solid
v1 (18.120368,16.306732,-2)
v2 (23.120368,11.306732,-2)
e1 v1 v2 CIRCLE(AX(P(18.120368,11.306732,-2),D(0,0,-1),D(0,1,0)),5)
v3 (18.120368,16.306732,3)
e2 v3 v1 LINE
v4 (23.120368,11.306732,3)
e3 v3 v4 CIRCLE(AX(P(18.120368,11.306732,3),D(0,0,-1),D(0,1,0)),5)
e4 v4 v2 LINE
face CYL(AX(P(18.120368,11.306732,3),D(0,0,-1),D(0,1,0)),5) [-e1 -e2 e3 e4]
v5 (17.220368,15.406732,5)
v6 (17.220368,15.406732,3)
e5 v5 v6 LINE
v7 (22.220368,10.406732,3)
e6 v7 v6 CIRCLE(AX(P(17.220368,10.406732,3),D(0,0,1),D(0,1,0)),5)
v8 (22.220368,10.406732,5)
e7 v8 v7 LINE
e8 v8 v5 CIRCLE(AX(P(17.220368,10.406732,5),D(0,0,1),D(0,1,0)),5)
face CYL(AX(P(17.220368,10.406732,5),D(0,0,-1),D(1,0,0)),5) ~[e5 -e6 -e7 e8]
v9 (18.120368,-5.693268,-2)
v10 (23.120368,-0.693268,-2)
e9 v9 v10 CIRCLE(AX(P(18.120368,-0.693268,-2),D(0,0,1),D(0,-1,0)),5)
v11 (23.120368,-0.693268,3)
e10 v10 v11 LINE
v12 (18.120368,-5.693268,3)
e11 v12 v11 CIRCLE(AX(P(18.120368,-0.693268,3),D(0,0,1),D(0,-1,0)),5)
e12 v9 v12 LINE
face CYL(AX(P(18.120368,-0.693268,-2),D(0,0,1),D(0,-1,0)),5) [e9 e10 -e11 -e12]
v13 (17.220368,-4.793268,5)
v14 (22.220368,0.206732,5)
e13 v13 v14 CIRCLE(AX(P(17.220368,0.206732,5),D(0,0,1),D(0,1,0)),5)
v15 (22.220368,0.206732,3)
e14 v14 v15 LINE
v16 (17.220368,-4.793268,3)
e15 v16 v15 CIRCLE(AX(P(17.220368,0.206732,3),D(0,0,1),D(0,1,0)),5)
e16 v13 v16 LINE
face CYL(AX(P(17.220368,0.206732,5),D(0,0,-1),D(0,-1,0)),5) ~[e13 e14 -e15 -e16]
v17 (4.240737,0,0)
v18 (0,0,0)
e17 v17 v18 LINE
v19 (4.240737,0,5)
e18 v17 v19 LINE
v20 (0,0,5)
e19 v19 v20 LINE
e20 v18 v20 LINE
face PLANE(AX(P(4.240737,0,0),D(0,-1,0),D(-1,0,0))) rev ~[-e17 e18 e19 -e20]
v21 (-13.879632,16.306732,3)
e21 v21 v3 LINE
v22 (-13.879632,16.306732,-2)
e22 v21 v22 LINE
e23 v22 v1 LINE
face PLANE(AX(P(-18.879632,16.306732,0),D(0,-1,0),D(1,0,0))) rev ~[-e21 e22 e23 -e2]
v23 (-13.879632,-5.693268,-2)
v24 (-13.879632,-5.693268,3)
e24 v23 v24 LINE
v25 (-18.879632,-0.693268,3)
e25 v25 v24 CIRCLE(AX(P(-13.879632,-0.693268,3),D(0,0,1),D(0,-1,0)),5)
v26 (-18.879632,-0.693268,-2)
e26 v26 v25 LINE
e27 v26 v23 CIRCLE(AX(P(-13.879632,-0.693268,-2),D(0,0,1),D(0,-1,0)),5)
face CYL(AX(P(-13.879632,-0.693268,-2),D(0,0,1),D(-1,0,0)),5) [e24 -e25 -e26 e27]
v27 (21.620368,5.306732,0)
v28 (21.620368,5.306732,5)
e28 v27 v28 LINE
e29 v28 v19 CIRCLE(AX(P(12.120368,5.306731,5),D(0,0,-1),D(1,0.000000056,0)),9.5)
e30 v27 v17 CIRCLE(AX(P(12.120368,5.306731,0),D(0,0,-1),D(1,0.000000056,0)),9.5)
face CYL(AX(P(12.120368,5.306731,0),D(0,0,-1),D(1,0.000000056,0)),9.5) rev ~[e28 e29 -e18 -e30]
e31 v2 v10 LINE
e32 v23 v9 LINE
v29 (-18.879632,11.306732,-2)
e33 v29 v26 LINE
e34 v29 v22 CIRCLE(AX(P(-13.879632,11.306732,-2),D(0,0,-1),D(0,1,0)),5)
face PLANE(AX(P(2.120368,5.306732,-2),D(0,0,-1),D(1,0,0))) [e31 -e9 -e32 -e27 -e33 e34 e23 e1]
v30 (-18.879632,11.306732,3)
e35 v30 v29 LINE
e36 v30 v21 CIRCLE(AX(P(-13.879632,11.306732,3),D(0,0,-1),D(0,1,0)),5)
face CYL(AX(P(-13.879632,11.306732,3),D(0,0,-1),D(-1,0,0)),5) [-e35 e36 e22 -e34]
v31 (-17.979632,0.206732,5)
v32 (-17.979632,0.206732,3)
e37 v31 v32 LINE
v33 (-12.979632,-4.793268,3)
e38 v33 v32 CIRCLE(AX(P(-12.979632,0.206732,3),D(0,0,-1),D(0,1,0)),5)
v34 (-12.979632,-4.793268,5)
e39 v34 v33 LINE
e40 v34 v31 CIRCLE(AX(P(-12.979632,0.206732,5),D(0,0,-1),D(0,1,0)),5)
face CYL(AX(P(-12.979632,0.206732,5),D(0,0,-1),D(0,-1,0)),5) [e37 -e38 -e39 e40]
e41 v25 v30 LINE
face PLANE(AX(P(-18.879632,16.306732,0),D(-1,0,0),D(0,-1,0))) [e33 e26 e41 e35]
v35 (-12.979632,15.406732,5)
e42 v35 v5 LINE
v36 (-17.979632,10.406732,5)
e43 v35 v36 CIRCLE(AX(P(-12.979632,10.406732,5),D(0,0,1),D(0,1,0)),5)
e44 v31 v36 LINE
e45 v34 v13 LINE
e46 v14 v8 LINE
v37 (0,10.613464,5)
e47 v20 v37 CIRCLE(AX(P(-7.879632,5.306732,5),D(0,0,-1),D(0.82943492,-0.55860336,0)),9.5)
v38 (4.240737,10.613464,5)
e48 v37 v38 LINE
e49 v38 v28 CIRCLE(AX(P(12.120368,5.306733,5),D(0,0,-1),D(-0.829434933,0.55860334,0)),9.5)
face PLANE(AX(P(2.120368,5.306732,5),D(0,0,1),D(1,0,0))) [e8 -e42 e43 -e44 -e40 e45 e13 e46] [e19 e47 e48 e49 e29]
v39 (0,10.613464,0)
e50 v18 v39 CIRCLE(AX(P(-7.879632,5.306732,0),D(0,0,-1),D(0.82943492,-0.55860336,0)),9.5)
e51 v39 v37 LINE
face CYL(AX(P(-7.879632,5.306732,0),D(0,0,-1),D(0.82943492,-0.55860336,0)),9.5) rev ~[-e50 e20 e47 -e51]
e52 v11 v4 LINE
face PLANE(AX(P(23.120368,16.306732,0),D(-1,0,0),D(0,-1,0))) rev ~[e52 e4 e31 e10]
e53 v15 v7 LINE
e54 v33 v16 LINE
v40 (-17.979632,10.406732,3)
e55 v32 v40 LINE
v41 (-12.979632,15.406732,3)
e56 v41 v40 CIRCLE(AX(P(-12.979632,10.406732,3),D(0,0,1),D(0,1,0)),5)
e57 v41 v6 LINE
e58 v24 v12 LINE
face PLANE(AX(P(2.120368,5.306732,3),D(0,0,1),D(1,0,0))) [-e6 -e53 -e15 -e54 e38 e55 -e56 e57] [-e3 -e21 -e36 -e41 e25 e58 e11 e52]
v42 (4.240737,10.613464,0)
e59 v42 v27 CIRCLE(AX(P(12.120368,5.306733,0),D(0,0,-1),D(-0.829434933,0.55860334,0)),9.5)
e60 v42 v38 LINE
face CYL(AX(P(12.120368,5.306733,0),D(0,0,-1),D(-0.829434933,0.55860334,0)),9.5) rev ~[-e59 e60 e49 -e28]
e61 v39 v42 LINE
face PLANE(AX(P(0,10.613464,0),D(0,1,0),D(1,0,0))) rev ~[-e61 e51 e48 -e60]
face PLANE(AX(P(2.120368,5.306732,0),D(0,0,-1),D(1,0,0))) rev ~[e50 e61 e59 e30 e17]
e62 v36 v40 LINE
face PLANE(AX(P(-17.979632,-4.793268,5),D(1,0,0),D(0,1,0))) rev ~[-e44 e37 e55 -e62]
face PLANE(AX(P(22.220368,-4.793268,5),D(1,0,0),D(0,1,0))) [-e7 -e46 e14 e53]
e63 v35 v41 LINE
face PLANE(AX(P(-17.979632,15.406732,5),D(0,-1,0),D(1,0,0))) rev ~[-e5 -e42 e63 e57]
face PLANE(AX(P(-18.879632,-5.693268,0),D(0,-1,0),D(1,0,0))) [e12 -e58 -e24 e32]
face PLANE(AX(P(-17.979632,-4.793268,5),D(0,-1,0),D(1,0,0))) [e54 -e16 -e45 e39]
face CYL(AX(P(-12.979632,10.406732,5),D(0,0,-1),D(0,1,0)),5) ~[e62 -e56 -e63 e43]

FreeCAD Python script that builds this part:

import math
import FreeCAD as App
import Part
import Sketcher
from FreeCAD import Vector


def edges_at(feature, points):
    """Names of the edges that pass closest to the given points."""
    edges = feature.Shape.Edges
    near = lambda p: min(range(len(edges)), key=lambda i: edges[i].distToShape(Part.Vertex(*p))[0])
    return sorted({f"Edge{near(p) + 1}" for p in points})


def add_polygon(sketch, points):
    """Adds a closed chain of lines whose ends are joined by coincident constraints."""
    first, n = sketch.GeometryCount, len(points)
    for a, b in zip(points, points[1:] + points[:1]):
        sketch.addGeometry(Part.LineSegment(App.Vector(*a, 0), App.Vector(*b, 0)), False)
    for i in range(n):
        sketch.addConstraint(Sketcher.Constraint("Coincident", first + i, 2, first + (i + 1) % n, 1))

doc = App.newDocument("Part")
body = doc.addObject("PartDesign::Body", "Body")

# Sketch on XY plane
sketch1 = body.newObject("Sketcher::SketchObject", "Sketch")
sketch1.AttachmentSupport = (doc.getObject("XY_Plane"), [""])
sketch1.MapMode = "FlatFace"
add_polygon(sketch1, [(-18.9, 16.3), (-18.9, -5.7), (23.1, -5.7), (23.1, 16.3)])  # lines 0-3
sketch1.addGeometry(Part.LineSegment(Vector(4.2, 0, 0), Vector(0, 0, 0)), False)  # 4
sketch1.addGeometry(Part.ArcOfCircle(Part.Circle(Vector(-7.9, 5.3, 0), Vector(0, 0, 1), 9.5), math.radians(34), math.radians(326)), False)  # 5
sketch1.addGeometry(Part.LineSegment(Vector(0, 10.6, 0), Vector(4.2, 10.6, 0)), False)  # 6
sketch1.addGeometry(Part.ArcOfCircle(Part.Circle(Vector(12.1, 5.3, 0), Vector(0, 0, 1), 9.5), math.radians(0), math.radians(146)), False)  # 7
sketch1.addGeometry(Part.ArcOfCircle(Part.Circle(Vector(12.1, 5.3, 0), Vector(0, 0, 1), 9.5), math.radians(-146), math.radians(0)), False)  # 8
sketch1.addConstraint([
    Sketcher.Constraint("Coincident", 4, 2, 5, 2),
    Sketcher.Constraint("Coincident", 5, 1, 6, 1),
    Sketcher.Constraint("Coincident", 6, 2, 7, 2),
    Sketcher.Constraint("Tangent", 7, 1, 8, 2),
    Sketcher.Constraint("Coincident", 8, 1, 4, 1),
    Sketcher.Constraint("Vertical", 0),
    Sketcher.Constraint("Horizontal", 1),
    Sketcher.Constraint("Vertical", 2),
    Sketcher.Constraint("Horizontal", 3),
    Sketcher.Constraint("Horizontal", 4),
    Sketcher.Constraint("Horizontal", 6),
    Sketcher.Constraint("Coincident", 4, 2, -1, 1),
    Sketcher.Constraint("Equal", 5, 7),
    Sketcher.Constraint("Equal", 7, 8),
    Sketcher.Constraint("PointOnObject", 5, 1, -2),
    Sketcher.Constraint("Horizontal", 5, 3, 7, 3),
    Sketcher.Constraint("Horizontal", 8, 3, 7, 1),
    Sketcher.Constraint("Radius", 5, 9.5),
    Sketcher.Constraint("DistanceX", 1, 1, 1, 2, 42.0),
    Sketcher.Constraint("DistanceY", 0, 2, 0, 1, 22.0),
    Sketcher.Constraint("DistanceX", 5, 3, 7, 3, 20.0),
    Sketcher.Constraint("DistanceX", 0, 2, 5, 3, 11.0),
    Sketcher.Constraint("DistanceY", 0, 2, 5, 3, 11.0),
    Sketcher.Constraint("DistanceX", 4, 2, 4, 1, 4.240737),
])
pad1 = body.newObject("PartDesign::Pad", "Pad")
pad1.Profile = sketch1
pad1.Length = 5

# Sketch on XY plane
sketch2 = body.newObject("Sketcher::SketchObject", "Sketch001")
sketch2.AttachmentSupport = (doc.getObject("XY_Plane"), [""])
sketch2.MapMode = "FlatFace"
add_polygon(sketch2, [(-19, -6), (-19, 16), (23, 16), (23, -6)])  # lines 0-3
sketch2.addConstraint([
    Sketcher.Constraint("Vertical", 0),
    Sketcher.Constraint("Horizontal", 1),
    Sketcher.Constraint("Vertical", 2),
    Sketcher.Constraint("Horizontal", 3),
    Sketcher.Constraint("DistanceX", 1, 1, 1, 2, 42.0),
    Sketcher.Constraint("DistanceY", 0, 1, 0, 2, 22.0),
    Sketcher.Constraint("DistanceY", -1, 1, 0, 2, 16.306732),
    Sketcher.Constraint("DistanceX", 0, 2, -1, 1, 18.879632),
])
pad2 = body.newObject("PartDesign::Pad", "Pad001")
pad2.Profile = sketch2
pad2.Length = 2
pad2.Reversed = True

# Sketch on XY plane
sketch3 = body.newObject("Sketcher::SketchObject", "Sketch002")
sketch3.AttachmentSupport = (doc.getObject("XY_Plane"), [""])
sketch3.MapMode = "FlatFace"
sketch3.AttachmentOffset = App.Placement(Vector(0, 0, 5), App.Rotation())
add_polygon(sketch3, [(-19, 16), (-19, -6), (23, -6), (23, 16)])  # lines 0-3
add_polygon(sketch3, [(22, -5), (-18, -5), (-18, 15), (22, 15)])  # lines 4-7
sketch3.addConstraint([
    Sketcher.Constraint("Vertical", 0),
    Sketcher.Constraint("Horizontal", 1),
    Sketcher.Constraint("Vertical", 2),
    Sketcher.Constraint("Horizontal", 3),
    Sketcher.Constraint("Horizontal", 4),
    Sketcher.Constraint("Vertical", 5),
    Sketcher.Constraint("Horizontal", 6),
    Sketcher.Constraint("Vertical", 7),
    Sketcher.Constraint("DistanceX", 1, 1, 1, 2, 42.0),
    Sketcher.Constraint("DistanceY", 0, 2, 0, 1, 22.0),
    Sketcher.Constraint("DistanceX", 4, 2, 4, 1, 40.2),
    Sketcher.Constraint("DistanceY", 5, 1, 5, 2, 20.2),
    Sketcher.Constraint("DistanceX", 0, 2, 4, 2, 0.9),
    Sketcher.Constraint("DistanceY", 0, 2, 4, 2, 0.9),
    Sketcher.Constraint("DistanceY", -1, 1, 2, 2, 16.306732),
    Sketcher.Constraint("DistanceX", 4, 2, -1, 1, 17.979632),
])
pocket1 = body.newObject("PartDesign::Pocket", "Pocket")
pocket1.Profile = sketch3
pocket1.Length = 2
doc.recompute()

fillet = body.newObject("PartDesign::Fillet", "Fillet")
fillet.Base = (pocket1, edges_at(pocket1, [
    (-18.88, 16.307, 0.5),
    (-18.88, -5.693, 0.5),
    (23.12, -5.693, 0.5),
    (23.12, 16.307, 0.5),
    (22.22, 15.407, 4),
    (-17.98, -4.793, 4),
    (22.22, -4.793, 4),
    (-17.98, 15.407, 4),
]))
fillet.Radius = 5

doc.recompute()
